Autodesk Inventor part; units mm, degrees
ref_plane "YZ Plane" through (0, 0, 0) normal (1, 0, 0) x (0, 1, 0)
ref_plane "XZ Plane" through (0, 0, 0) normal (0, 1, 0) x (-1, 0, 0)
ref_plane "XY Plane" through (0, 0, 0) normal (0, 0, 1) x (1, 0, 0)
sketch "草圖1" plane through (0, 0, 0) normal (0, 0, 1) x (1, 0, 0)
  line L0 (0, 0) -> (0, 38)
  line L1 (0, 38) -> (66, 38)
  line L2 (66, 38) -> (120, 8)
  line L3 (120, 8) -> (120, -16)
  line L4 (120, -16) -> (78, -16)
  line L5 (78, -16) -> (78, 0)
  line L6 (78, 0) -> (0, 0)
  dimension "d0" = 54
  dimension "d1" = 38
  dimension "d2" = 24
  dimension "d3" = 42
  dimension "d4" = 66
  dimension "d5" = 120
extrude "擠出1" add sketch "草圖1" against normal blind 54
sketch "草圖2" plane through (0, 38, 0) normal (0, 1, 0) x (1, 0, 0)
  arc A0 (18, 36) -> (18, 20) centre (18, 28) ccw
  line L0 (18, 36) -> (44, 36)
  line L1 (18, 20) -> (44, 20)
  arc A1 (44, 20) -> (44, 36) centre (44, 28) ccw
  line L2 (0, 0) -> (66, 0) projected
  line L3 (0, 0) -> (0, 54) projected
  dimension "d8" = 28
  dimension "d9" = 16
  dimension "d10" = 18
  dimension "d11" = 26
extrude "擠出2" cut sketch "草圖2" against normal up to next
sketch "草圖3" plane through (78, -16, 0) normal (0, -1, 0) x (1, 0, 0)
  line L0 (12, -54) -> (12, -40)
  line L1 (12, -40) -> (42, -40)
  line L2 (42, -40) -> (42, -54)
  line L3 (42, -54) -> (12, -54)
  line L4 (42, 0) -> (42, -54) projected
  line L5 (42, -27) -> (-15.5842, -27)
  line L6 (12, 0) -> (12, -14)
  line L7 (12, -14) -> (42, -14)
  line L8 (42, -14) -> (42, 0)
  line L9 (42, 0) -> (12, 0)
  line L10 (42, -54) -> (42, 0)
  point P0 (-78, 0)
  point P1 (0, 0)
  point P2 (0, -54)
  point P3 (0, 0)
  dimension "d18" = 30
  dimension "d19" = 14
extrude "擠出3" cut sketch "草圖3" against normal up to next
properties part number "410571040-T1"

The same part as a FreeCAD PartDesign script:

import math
import FreeCAD as App
import Part
import Sketcher


def add_polygon(sketch, points):
    """Adds a closed chain of lines whose ends are joined by coincident constraints."""
    first, n = sketch.GeometryCount, len(points)
    for a, b in zip(points, points[1:] + points[:1]):
        sketch.addGeometry(Part.LineSegment(App.Vector(*a, 0), App.Vector(*b, 0)), False)
    for i in range(n):
        sketch.addConstraint(Sketcher.Constraint("Coincident", first + i, 2, first + (i + 1) % n, 1))

doc = App.newDocument("Part")
body = doc.addObject("PartDesign::Body", "Body")

# Sketch on XY plane
sketch1 = body.newObject("Sketcher::SketchObject", "Sketch")
sketch1.AttachmentSupport = (doc.getObject("XY_Plane"), [""])
sketch1.MapMode = "FlatFace"
add_polygon(sketch1, [(0, 38), (0, 0), (78, 0), (78, -16), (120, -16), (120, 8), (66, 38)])  # lines 0-6
sketch1.addConstraint(Sketcher.Constraint("Vertical", 0))
sketch1.addConstraint(Sketcher.Constraint("Horizontal", 1))
sketch1.addConstraint(Sketcher.Constraint("Vertical", 2))
sketch1.addConstraint(Sketcher.Constraint("Horizontal", 3))
sketch1.addConstraint(Sketcher.Constraint("Vertical", 4))
sketch1.addConstraint(Sketcher.Constraint("Horizontal", 6))
sketch1.addConstraint(Sketcher.Constraint("Coincident", 0, 2, -1, 1))
sketch1.addConstraint(Sketcher.Constraint("DistanceX", 3, 1, 3, 2, 42.0))
sketch1.addConstraint(Sketcher.Constraint("DistanceX", 6, 2, 6, 1, 66.0))
sketch1.addConstraint(Sketcher.Constraint("DistanceY", 0, 2, 0, 1, 38.0))
sketch1.addConstraint(Sketcher.Constraint("DistanceY", 4, 1, 4, 2, 24.0))
sketch1.addConstraint(Sketcher.Constraint("DistanceX", -1, 1, 3, 2, 120.0))
sketch1.addConstraint(Sketcher.Constraint("DistanceY", 2, 2, 5, 2, 54.0))
pad1 = body.newObject("PartDesign::Pad", "Pad")
pad1.Profile = sketch1
pad1.Length = 54
pad1.Reversed = True

# Sketch on XZ plane
sketch2 = body.newObject("Sketcher::SketchObject", "Sketch001")
sketch2.AttachmentSupport = (doc.getObject("XZ_Plane"), [""])
sketch2.MapMode = "FlatFace"
sketch2.AttachmentOffset = App.Placement(App.Vector(0, 0, -38), App.Rotation())
sketch2.addGeometry(Part.LineSegment(App.Vector(44, -36, 0), App.Vector(18, -36, 0)), False)
sketch2.addGeometry(Part.ArcOfCircle(Part.Circle(App.Vector(18, -28, 0), App.Vector(0, 0, 1), 8), math.radians(90), math.radians(270)), False)
sketch2.addGeometry(Part.LineSegment(App.Vector(18, -20, 0), App.Vector(44, -20, 0)), False)
sketch2.addGeometry(Part.ArcOfCircle(Part.Circle(App.Vector(44, -28, 0), App.Vector(0, 0, 1), 8), math.radians(-90), math.radians(90)), False)
sketch2.addConstraint(Sketcher.Constraint("Tangent", 0, 2, 1, 2))
sketch2.addConstraint(Sketcher.Constraint("Tangent", 1, 1, 2, 1))
sketch2.addConstraint(Sketcher.Constraint("Tangent", 2, 2, 3, 2))
sketch2.addConstraint(Sketcher.Constraint("Tangent", 3, 1, 0, 1))
sketch2.addConstraint(Sketcher.Constraint("Horizontal", 0))
sketch2.addConstraint(Sketcher.Constraint("Horizontal", 2))
sketch2.addConstraint(Sketcher.Constraint("Radius", 1, 8.0))
sketch2.addConstraint(Sketcher.Constraint("DistanceX", 0, 2, 0, 1, 26.0))
sketch2.addConstraint(Sketcher.Constraint("DistanceX", -1, 1, 1, 3, 18.0))
sketch2.addConstraint(Sketcher.Constraint("DistanceY", 1, 3, -1, 1, 28.0))
pocket1 = body.newObject("PartDesign::Pocket", "Pocket")
pocket1.Profile = sketch2
pocket1.Type = "UpToFirst"
pocket1.Reversed = True

# Sketch on XZ plane
sketch3 = body.newObject("Sketcher::SketchObject", "Sketch002")
sketch3.AttachmentSupport = (doc.getObject("XZ_Plane"), [""])
sketch3.MapMode = "FlatFace"
sketch3.AttachmentOffset = App.Placement(App.Vector(0, 0, 16), App.Rotation())
add_polygon(sketch3, [(90, -14), (120, -14), (120, 0), (90, 0)])  # lines 0-3
add_polygon(sketch3, [(90, -40), (90, -54), (120, -54), (120, -40)])  # lines 4-7
sketch3.addConstraint(Sketcher.Constraint("Horizontal", 0))
sketch3.addConstraint(Sketcher.Constraint("Vertical", 1))
sketch3.addConstraint(Sketcher.Constraint("Horizontal", 2))
sketch3.addConstraint(Sketcher.Constraint("Vertical", 3))
sketch3.addConstraint(Sketcher.Constraint("Vertical", 4))
sketch3.addConstraint(Sketcher.Constraint("Horizontal", 5))
sketch3.addConstraint(Sketcher.Constraint("Vertical", 6))
sketch3.addConstraint(Sketcher.Constraint("Horizontal", 7))
sketch3.addConstraint(Sketcher.Constraint("PointOnObject", 1, 2, -1))
sketch3.addConstraint(Sketcher.Constraint("Vertical", 3, 2, 4, 2))
sketch3.addConstraint(Sketcher.Constraint("Vertical", 1, 2, 5, 2))
sketch3.addConstraint(Sketcher.Constraint("Equal", 3, 4))
sketch3.addConstraint(Sketcher.Constraint("DistanceX", 0, 1, 0, 2, 30.0))
sketch3.addConstraint(Sketcher.Constraint("DistanceY", 1, 1, 1, 2, 14.0))
sketch3.addConstraint(Sketcher.Constraint("DistanceX", -1, 1, 0, 2, 120.0))
sketch3.addConstraint(Sketcher.Constraint("DistanceY", 4, 2, -1, 1, 54.0))
pocket2 = body.newObject("PartDesign::Pocket", "Pocket001")
pocket2.Profile = sketch3
pocket2.Type = "UpToFirst"

doc.recompute()
